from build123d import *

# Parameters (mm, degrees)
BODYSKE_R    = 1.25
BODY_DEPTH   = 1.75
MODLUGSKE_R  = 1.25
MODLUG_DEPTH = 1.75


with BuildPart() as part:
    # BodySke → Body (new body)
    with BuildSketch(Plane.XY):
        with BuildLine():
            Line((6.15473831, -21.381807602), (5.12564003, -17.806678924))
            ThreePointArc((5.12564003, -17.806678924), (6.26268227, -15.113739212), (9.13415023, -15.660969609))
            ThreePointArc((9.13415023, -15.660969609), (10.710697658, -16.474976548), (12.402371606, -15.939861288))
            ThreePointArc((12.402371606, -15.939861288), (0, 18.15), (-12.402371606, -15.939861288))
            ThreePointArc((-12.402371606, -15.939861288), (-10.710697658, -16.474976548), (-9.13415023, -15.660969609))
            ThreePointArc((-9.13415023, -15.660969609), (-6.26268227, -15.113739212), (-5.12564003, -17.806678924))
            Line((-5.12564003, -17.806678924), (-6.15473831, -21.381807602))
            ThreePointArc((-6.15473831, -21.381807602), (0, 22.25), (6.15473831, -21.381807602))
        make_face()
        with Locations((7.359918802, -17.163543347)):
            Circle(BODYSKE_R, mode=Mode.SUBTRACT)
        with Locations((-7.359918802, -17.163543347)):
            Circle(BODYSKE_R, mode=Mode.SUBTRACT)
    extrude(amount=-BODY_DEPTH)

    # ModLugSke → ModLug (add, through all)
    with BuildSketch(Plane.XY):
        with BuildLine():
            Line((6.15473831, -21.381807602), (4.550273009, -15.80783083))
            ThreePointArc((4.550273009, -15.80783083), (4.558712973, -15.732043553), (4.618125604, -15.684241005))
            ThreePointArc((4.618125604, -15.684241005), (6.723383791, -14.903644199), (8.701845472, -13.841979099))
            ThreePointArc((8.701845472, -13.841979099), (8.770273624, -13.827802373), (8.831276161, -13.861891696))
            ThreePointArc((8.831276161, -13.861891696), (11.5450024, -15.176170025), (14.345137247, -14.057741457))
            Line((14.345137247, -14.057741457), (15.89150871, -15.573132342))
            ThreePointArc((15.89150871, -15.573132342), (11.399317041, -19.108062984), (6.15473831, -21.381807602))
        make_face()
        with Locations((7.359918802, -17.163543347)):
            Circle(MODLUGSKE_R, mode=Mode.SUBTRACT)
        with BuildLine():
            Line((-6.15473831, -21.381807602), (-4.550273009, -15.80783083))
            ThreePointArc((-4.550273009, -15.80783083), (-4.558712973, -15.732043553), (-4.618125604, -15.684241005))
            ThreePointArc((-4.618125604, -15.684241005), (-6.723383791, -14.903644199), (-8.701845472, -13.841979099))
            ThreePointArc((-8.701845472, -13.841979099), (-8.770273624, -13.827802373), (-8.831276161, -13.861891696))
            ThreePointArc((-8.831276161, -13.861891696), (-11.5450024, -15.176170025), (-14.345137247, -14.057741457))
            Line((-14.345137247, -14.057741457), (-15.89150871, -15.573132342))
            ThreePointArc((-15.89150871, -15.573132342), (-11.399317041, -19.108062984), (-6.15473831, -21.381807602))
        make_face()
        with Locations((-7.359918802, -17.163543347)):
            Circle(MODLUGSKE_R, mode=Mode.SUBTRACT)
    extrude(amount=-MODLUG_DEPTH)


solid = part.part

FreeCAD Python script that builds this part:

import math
import FreeCAD as App
import Part
import Sketcher

V = App.Vector

doc = App.newDocument("Part")
body = doc.addObject("PartDesign::Body", "Body")

sketch1 = body.newObject("Sketcher::SketchObject", "Sketch")
sketch1.AttachmentSupport = (doc.getObject("XY_Plane"), [""])
sketch1.MapMode = "FlatFace"
sketch1.addGeometry(Part.LineSegment(V(5.12564, -17.806679, 0), V(6.154738, -21.381808, 0)), False)
sketch1.addGeometry(Part.ArcOfCircle(Part.Circle(V(0, 0, 0), V(0, 0, 1), 22.25), math.radians(-73.941573), math.radians(253.941573)), False)
sketch1.addGeometry(Part.LineSegment(V(-6.154738, -21.381808, 0), V(-5.12564, -17.806679, 0)), False)
sketch1.addGeometry(Part.ArcOfCircle(Part.Circle(V(-7.359919, -17.163543, 0), V(0, 0, 1), 2.325), math.radians(-16.058427), math.radians(139.739167)), False)
sketch1.addGeometry(Part.ArcOfCircle(Part.Circle(V(-10.908382, -14.158396, 0), V(0, 0, 1), 2.325), math.radians(-129.984199), math.radians(-40.260833)), False)
sketch1.addGeometry(Part.ArcOfCircle(Part.Circle(V(0, -1.151009, 0), V(0, 0, 1), 19.301009), math.radians(-50.015801), math.radians(230.015801)), False)
sketch1.addGeometry(Part.ArcOfCircle(Part.Circle(V(10.908382, -14.158396, 0), V(0, 0, 1), 2.325), math.radians(-139.739167), math.radians(-50.015801)), False)
sketch1.addGeometry(Part.ArcOfCircle(Part.Circle(V(7.359919, -17.163543, 0), V(0, 0, 1), 2.325), math.radians(40.260833), math.radians(196.058427)), False)
sketch1.addGeometry(Part.Circle(V(7.359919, -17.163543, 0), V(0, 0, 1), 1.25), False)
sketch1.addGeometry(Part.Circle(V(-7.359919, -17.163543, 0), V(0, 0, 1), 1.25), False)
sketch1.addConstraint(Sketcher.Constraint("Coincident", 0, 2, 1, 1))
sketch1.addConstraint(Sketcher.Constraint("Coincident", 1, 2, 2, 1))
sketch1.addConstraint(Sketcher.Constraint("Tangent", 2, 2, 3, 1))
sketch1.addConstraint(Sketcher.Constraint("Tangent", 3, 2, 4, 2))
sketch1.addConstraint(Sketcher.Constraint("Tangent", 4, 1, 5, 2))
sketch1.addConstraint(Sketcher.Constraint("Tangent", 5, 1, 6, 2))
sketch1.addConstraint(Sketcher.Constraint("Tangent", 6, 1, 7, 1))
sketch1.addConstraint(Sketcher.Constraint("Tangent", 7, 2, 0, 1))
sketch1.addConstraint(Sketcher.Constraint("Coincident", 1, 3, -1, 1))
sketch1.addConstraint(Sketcher.Constraint("Coincident", 8, 3, 7, 3))
sketch1.addConstraint(Sketcher.Constraint("Coincident", 9, 3, 3, 3))
sketch1.addConstraint(Sketcher.Constraint("Equal", 3, 4))
sketch1.addConstraint(Sketcher.Constraint("Equal", 4, 6))
sketch1.addConstraint(Sketcher.Constraint("Equal", 6, 7))
sketch1.addConstraint(Sketcher.Constraint("Equal", 8, 9))
sketch1.addConstraint(Sketcher.Constraint("Symmetric", 4, 3, 6, 3, -2))
sketch1.addConstraint(Sketcher.Constraint("Symmetric", 2, 2, 7, 2, -2))
sketch1.addConstraint(Sketcher.Constraint("Diameter", 8, 2.5))
sketch1.addConstraint(Sketcher.Constraint("Radius", 1, 22.25))
sketch1.addConstraint(Sketcher.Constraint("Radius", 3, 2.325))
sketch1.addConstraint(Sketcher.Constraint("Radius", 5, 19.301009))
sketch1.addConstraint(Sketcher.Constraint("DistanceX", 3, 3, 6, 3, 18.2683))
sketch1.addConstraint(Sketcher.Constraint("DistanceX", 1, 2, 2, 2, 1.029098))
sketch1.addConstraint(Sketcher.Constraint("DistanceX", 3, 3, -1, 1, 7.359919))
sketch1.addConstraint(Sketcher.Constraint("DistanceY", 5, 3, -1, 1, 1.151009))
pad1 = body.newObject("PartDesign::Pad", "Pad")
pad1.Profile = sketch1
pad1.Length = 1.75
pad1.Reversed = True

sketch2 = body.newObject("Sketcher::SketchObject", "Sketch001")
sketch2.AttachmentSupport = (doc.getObject("XY_Plane"), [""])
sketch2.MapMode = "FlatFace"
sketch2.addGeometry(Part.LineSegment(V(4.550273, -15.807831, 0), V(6.154738, -21.381808, 0)), False)
sketch2.addGeometry(Part.ArcOfCircle(Part.Circle(V(0, 0, 0), V(0, 0, 1), 22.25), math.radians(-73.941573), math.radians(-44.42027)), False)
sketch2.addGeometry(Part.LineSegment(V(15.891509, -15.573132, 0), V(14.345137, -14.057741, 0)), False)
sketch2.addGeometry(Part.ArcOfCircle(Part.Circle(V(11.677581, -11.443628, 0), V(0, 0, 1), 3.734896), math.radians(-139.648258), math.radians(-44.42027)), False)
sketch2.addGeometry(Part.ArcOfCircle(Part.Circle(V(8.755068, -13.92664, 0), V(0, 0, 1), 0.1), math.radians(40.351742), math.radians(122.155775)), False)
sketch2.addGeometry(Part.ArcOfCircle(Part.Circle(V(0, 0, 0), V(0, 0, 1), 16.35), math.radians(-73.593268), math.radians(-57.844225)), False)
sketch2.addGeometry(Part.ArcOfCircle(Part.Circle(V(4.646371, -15.780169, 0), V(0, 0, 1), 0.1), math.radians(106.406731), math.radians(196.058428)), False)
sketch2.addGeometry(Part.Circle(V(7.359919, -17.163543, 0), V(0, 0, 1), 1.25), False)
sketch2.addGeometry(Part.LineSegment(V(-6.154738, -21.381808, 0), V(-4.550273, -15.807831, 0)), False)
sketch2.addGeometry(Part.ArcOfCircle(Part.Circle(V(-4.646371, -15.780169, 0), V(0, 0, 1), 0.1), math.radians(-16.058428), math.radians(73.593269)), False)
sketch2.addGeometry(Part.ArcOfCircle(Part.Circle(V(0, 0, 0), V(0, 0, 1), 16.35), math.radians(-122.155775), math.radians(-106.406732)), False)
sketch2.addGeometry(Part.ArcOfCircle(Part.Circle(V(-8.755068, -13.92664, 0), V(0, 0, 1), 0.1), math.radians(57.844225), math.radians(139.648258)), False)
sketch2.addGeometry(Part.ArcOfCircle(Part.Circle(V(-11.677581, -11.443628, 0), V(0, 0, 1), 3.734896), math.radians(-135.57973), math.radians(-40.351742)), False)
sketch2.addGeometry(Part.LineSegment(V(-14.345137, -14.057741, 0), V(-15.891509, -15.573132, 0)), False)
sketch2.addGeometry(Part.ArcOfCircle(Part.Circle(V(0, 0, 0), V(0, 0, 1), 22.25), math.radians(-135.57973), math.radians(-106.058427)), False)
sketch2.addGeometry(Part.Circle(V(-7.359919, -17.163543, 0), V(0, 0, 1), 1.25), False)
sketch2.addConstraint(Sketcher.Constraint("Coincident", 0, 2, 1, 1))
sketch2.addConstraint(Sketcher.Constraint("Coincident", 1, 2, 2, 1))
sketch2.addConstraint(Sketcher.Constraint("Coincident", 2, 2, 3, 2))
sketch2.addConstraint(Sketcher.Constraint("Tangent", 3, 1, 4, 1))
sketch2.addConstraint(Sketcher.Constraint("Tangent", 4, 2, 5, 2))
sketch2.addConstraint(Sketcher.Constraint("Tangent", 5, 1, 6, 1))
sketch2.addConstraint(Sketcher.Constraint("Tangent", 6, 2, 0, 1))
sketch2.addConstraint(Sketcher.Constraint("Tangent", 8, 2, 9, 1))
sketch2.addConstraint(Sketcher.Constraint("Tangent", 9, 2, 10, 2))
sketch2.addConstraint(Sketcher.Constraint("Tangent", 10, 1, 11, 1))
sketch2.addConstraint(Sketcher.Constraint("Tangent", 11, 2, 12, 2))
sketch2.addConstraint(Sketcher.Constraint("Coincident", 12, 1, 13, 1))
sketch2.addConstraint(Sketcher.Constraint("Coincident", 13, 2, 14, 1))
sketch2.addConstraint(Sketcher.Constraint("Coincident", 14, 2, 8, 1))
sketch2.addConstraint(Sketcher.Constraint("Coincident", 1, 3, -1, 1))
sketch2.addConstraint(Sketcher.Constraint("Coincident", 5, 3, -1, 1))
sketch2.addConstraint(Sketcher.Constraint("Coincident", 10, 3, -1, 1))
sketch2.addConstraint(Sketcher.Constraint("Coincident", 14, 3, -1, 1))
sketch2.addConstraint(Sketcher.Constraint("Equal", 4, 6))
sketch2.addConstraint(Sketcher.Constraint("Equal", 6, 9))
sketch2.addConstraint(Sketcher.Constraint("Equal", 5, 10))
sketch2.addConstraint(Sketcher.Constraint("Equal", 9, 11))
sketch2.addConstraint(Sketcher.Constraint("Equal", 3, 12))
sketch2.addConstraint(Sketcher.Constraint("Equal", 1, 14))
sketch2.addConstraint(Sketcher.Constraint("Equal", 7, 15))
sketch2.addConstraint(Sketcher.Constraint("Symmetric", 3, 3, 12, 3, -2))
sketch2.addConstraint(Sketcher.Constraint("Symmetric", 7, 3, 15, 3, -2))
sketch2.addConstraint(Sketcher.Constraint("Symmetric", 6, 2, 8, 2, -2))
sketch2.addConstraint(Sketcher.Constraint("Horizontal", 2, 2, 12, 1))
sketch2.addConstraint(Sketcher.Constraint("Horizontal", 1, 2, 13, 2))
sketch2.addConstraint(Sketcher.Constraint("Diameter", 7, 2.5))
sketch2.addConstraint(Sketcher.Constraint("Radius", 4, 0.1))
sketch2.addConstraint(Sketcher.Constraint("Radius", 1, 22.25))
sketch2.addConstraint(Sketcher.Constraint("Radius", 5, 16.35))
sketch2.addConstraint(Sketcher.Constraint("Radius", 3, 3.734896))
sketch2.addConstraint(Sketcher.Constraint("DistanceY", 2, 2, 4, 3, 0.131102))
sketch2.addConstraint(Sketcher.Constraint("DistanceY", 7, 3, 2, 2, 3.105802))
sketch2.addConstraint(Sketcher.Constraint("DistanceY", 5, 1, 4, 3, 1.757601))
sketch2.addConstraint(Sketcher.Constraint("DistanceX", 6, 2, 6, 3, 0.096098))
sketch2.addConstraint(Sketcher.Constraint("DistanceX", -1, 1, 3, 3, 11.677581))
sketch2.addConstraint(Sketcher.Constraint("DistanceY", 4, 3, -1, 1, 13.92664))
sketch2.addConstraint(Sketcher.Constraint("DistanceX", -1, 1, 7, 3, 7.359919))
sketch2.addConstraint(Sketcher.Constraint("DistanceX", -1, 1, 1, 2, 15.891509))
pad2 = body.newObject("PartDesign::Pad", "Pad001")
pad2.Profile = sketch2
pad2.Length = 1.75
pad2.Reversed = True

doc.recompute()
